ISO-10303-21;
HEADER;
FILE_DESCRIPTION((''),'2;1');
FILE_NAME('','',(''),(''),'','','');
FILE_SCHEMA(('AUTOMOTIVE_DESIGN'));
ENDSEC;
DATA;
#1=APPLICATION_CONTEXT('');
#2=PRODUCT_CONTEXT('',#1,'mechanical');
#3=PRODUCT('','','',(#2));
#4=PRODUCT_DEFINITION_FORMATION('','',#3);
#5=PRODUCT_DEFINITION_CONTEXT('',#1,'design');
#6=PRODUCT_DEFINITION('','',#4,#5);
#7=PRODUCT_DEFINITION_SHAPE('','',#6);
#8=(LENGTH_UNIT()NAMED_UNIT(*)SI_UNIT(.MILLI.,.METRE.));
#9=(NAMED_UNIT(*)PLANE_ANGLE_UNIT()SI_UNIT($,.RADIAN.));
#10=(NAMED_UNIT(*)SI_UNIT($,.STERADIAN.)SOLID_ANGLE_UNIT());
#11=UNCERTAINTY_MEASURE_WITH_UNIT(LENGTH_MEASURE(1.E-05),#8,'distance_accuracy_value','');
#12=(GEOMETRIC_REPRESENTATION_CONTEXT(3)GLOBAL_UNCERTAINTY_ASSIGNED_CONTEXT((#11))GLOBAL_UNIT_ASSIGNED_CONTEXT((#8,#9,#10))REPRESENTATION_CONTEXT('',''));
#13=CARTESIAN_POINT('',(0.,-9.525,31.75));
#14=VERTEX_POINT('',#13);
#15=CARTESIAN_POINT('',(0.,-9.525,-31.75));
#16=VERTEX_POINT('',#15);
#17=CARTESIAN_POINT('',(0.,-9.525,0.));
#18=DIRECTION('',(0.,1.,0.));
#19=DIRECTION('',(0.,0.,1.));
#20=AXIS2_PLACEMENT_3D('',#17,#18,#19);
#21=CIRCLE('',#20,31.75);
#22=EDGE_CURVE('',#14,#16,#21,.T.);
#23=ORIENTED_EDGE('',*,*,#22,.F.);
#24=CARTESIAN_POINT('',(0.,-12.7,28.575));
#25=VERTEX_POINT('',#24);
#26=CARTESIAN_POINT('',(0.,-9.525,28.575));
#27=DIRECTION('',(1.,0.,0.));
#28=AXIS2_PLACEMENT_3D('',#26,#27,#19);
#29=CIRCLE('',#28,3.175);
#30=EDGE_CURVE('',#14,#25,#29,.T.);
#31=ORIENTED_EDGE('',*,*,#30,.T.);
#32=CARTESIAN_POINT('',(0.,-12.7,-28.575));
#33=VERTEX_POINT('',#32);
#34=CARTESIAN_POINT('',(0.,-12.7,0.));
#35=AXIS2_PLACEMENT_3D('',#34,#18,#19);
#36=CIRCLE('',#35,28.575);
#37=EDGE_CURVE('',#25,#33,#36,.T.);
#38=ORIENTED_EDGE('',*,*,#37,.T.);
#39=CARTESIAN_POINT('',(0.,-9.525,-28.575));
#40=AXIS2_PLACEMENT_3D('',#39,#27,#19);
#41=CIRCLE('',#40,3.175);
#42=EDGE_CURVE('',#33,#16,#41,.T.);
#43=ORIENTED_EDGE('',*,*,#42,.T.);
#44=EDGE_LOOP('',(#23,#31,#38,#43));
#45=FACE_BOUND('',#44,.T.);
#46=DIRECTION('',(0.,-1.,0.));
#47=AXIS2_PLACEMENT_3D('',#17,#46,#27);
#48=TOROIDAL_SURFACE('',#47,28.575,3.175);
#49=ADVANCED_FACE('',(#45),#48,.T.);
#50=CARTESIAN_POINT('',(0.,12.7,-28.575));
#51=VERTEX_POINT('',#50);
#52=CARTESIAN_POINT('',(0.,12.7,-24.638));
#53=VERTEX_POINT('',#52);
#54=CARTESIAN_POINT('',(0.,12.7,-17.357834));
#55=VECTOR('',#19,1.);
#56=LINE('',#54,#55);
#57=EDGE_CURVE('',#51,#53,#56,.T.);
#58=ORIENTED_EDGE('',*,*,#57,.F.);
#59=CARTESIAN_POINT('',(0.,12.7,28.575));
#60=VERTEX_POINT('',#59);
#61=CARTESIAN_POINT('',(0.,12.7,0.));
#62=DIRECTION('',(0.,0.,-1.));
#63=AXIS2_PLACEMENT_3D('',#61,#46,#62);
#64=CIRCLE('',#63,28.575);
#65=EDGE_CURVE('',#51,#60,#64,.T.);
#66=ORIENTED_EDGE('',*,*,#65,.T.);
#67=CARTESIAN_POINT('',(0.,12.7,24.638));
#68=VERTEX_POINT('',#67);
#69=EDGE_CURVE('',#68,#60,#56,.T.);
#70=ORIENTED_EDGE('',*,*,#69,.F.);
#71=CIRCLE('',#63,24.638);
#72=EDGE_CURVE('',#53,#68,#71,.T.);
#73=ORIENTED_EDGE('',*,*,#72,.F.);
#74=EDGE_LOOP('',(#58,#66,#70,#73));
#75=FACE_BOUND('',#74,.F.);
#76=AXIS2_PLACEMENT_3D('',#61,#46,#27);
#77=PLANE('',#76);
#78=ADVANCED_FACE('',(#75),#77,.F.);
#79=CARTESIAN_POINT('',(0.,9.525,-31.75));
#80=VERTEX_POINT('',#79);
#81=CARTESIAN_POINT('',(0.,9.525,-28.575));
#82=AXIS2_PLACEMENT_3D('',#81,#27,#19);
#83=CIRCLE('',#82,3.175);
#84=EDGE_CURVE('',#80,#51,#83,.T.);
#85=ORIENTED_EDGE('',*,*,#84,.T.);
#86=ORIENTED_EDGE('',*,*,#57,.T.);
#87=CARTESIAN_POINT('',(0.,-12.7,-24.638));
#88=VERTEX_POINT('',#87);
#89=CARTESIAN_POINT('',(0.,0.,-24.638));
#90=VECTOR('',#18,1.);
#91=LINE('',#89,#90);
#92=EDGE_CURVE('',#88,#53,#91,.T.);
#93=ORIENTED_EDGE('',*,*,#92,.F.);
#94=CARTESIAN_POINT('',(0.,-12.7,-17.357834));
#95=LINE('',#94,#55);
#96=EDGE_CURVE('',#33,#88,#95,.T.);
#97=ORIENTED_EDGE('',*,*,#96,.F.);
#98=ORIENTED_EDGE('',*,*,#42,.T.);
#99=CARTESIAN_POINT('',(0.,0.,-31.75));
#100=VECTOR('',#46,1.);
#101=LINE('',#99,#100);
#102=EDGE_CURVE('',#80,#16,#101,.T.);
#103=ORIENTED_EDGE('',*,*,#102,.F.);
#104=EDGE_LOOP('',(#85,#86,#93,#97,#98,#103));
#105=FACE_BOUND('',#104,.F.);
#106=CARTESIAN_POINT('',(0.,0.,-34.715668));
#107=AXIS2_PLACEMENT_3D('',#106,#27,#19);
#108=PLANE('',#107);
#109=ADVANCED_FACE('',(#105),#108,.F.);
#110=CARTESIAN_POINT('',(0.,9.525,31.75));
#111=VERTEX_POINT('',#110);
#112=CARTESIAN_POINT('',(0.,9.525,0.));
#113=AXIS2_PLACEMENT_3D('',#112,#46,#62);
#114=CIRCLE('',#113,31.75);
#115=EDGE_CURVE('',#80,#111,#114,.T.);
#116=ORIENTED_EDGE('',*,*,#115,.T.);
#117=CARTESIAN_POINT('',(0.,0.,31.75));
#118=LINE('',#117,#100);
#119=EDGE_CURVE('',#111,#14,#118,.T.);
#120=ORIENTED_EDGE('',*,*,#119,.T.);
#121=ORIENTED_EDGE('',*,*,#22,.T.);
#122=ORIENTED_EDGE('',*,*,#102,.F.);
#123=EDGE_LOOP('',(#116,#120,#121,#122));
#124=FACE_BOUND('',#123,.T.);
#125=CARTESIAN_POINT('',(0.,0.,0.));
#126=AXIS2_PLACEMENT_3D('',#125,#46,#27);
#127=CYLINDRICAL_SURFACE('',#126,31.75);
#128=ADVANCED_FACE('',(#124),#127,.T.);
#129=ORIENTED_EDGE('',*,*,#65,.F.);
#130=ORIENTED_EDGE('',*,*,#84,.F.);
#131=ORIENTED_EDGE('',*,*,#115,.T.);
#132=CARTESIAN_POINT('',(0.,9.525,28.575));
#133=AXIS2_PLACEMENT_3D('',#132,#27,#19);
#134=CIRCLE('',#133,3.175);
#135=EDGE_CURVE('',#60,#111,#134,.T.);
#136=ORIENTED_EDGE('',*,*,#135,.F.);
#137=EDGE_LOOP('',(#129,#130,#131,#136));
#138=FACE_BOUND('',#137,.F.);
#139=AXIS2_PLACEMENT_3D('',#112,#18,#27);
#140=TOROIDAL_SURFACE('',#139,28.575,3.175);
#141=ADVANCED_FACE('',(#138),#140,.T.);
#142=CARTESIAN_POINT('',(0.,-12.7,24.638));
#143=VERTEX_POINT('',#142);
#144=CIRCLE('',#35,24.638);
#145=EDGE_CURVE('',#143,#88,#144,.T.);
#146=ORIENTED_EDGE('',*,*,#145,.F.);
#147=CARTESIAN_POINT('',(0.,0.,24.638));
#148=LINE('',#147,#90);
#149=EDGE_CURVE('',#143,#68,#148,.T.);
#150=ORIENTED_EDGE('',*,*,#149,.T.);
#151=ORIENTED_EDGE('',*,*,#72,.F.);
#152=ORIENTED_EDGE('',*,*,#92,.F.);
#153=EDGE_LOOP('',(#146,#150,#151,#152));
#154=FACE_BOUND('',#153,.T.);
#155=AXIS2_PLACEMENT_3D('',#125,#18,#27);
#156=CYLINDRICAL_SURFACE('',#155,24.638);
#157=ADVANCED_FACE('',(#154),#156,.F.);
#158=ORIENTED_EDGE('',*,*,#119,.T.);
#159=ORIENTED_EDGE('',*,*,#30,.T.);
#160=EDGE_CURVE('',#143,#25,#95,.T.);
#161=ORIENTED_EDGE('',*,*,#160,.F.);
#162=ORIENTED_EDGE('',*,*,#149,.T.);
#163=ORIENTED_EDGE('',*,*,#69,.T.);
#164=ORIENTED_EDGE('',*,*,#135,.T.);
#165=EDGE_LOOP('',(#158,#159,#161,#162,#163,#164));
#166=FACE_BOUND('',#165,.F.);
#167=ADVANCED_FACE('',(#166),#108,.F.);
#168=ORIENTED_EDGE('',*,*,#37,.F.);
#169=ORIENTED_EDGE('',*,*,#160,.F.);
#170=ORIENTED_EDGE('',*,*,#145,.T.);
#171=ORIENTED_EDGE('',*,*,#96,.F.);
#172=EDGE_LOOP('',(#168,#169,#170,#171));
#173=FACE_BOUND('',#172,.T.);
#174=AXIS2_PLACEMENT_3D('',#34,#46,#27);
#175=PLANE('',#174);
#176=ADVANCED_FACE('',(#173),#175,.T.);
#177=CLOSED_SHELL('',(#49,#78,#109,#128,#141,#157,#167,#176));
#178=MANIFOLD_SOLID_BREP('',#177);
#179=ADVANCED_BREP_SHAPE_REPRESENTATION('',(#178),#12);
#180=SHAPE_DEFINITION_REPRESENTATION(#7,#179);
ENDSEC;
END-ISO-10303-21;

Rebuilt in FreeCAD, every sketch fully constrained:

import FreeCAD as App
import Part
import Sketcher

V = App.Vector
Q = App.Units.Quantity


def edges_at(feature, points):
    """Names of the edges that pass closest to the given points."""
    edges = feature.Shape.Edges
    near = lambda p: min(range(len(edges)), key=lambda i: edges[i].distToShape(Part.Vertex(*p))[0])
    return sorted({f"Edge{near(p) + 1}" for p in points})

doc = App.newDocument("Part")
body = doc.addObject("PartDesign::Body", "Body")

# Sketch on XZ plane
sketch1 = body.newObject("Sketcher::SketchObject", "Sketch")
sketch1.AttachmentSupport = (doc.getObject("XZ_Plane"), [""])
sketch1.MapMode = "FlatFace"
sketch1.addGeometry([
    Part.Circle(V(0, 0, 0), V(0, 0, 1), 32),
    Part.Circle(V(0, 0, 0), V(0, 0, 1), 25),
], False)
sketch1.addConstraint([
    Sketcher.Constraint("Coincident", 0, 3, -1, 1),
    Sketcher.Constraint("Coincident", 1, 3, -1, 1),
    Sketcher.Constraint("Diameter", 0, Q("2.5 in")),
    Sketcher.Constraint("Diameter", 1, Q("1.94 in")),
])
pad1 = body.newObject("PartDesign::Pad", "Pad")
pad1.Profile = sketch1
pad1.Length = Q("1 in")
pad1.Midplane = True
doc.recompute()

fillet = body.newObject("PartDesign::Fillet", "Fillet")
fillet.Base = (pad1, edges_at(pad1, [(-31.75, -12.7, 0), (-31.75, 12.7, 0)]))
fillet.Radius = Q("0.125 in")

# Sketch on XZ plane
sketch2 = body.newObject("Sketcher::SketchObject", "Sketch001")
sketch2.AttachmentSupport = (doc.getObject("XZ_Plane"), [""])
sketch2.MapMode = "FlatFace"
sketch2.addGeometry([
    Part.LineSegment(V(-33, 34, 0), V(-33, -35, 0)),
    Part.LineSegment(V(-33, -35, 0), V(0, -35, 0)),
    Part.LineSegment(V(0, -35, 0), V(0, 34, 0)),
    Part.LineSegment(V(0, 34, 0), V(-33, 34, 0)),
], False)
sketch2.addConstraint([
    Sketcher.Constraint("Coincident", 0, 2, 1, 1),
    Sketcher.Constraint("Coincident", 1, 2, 2, 1),
    Sketcher.Constraint("Coincident", 2, 2, 3, 1),
    Sketcher.Constraint("Coincident", 3, 2, 0, 1),
    Sketcher.Constraint("Vertical", 0),
    Sketcher.Constraint("Horizontal", 1),
    Sketcher.Constraint("Vertical", 2),
    Sketcher.Constraint("Horizontal", 3),
    Sketcher.Constraint("PointOnObject", 1, 2, -2),
    Sketcher.Constraint("DistanceX", 1, 1, 1, 2, 32.752518),
    Sketcher.Constraint("DistanceY", 0, 2, 0, 1, 69.030817),
    Sketcher.Constraint("DistanceY", -1, 1, 2, 2, 34.315149),
])
pocket1 = body.newObject("PartDesign::Pocket", "Pocket")
pocket1.Profile = sketch2
pocket1.Length = Q("1.25 in")
pocket1.Midplane = True

doc.recompute()
